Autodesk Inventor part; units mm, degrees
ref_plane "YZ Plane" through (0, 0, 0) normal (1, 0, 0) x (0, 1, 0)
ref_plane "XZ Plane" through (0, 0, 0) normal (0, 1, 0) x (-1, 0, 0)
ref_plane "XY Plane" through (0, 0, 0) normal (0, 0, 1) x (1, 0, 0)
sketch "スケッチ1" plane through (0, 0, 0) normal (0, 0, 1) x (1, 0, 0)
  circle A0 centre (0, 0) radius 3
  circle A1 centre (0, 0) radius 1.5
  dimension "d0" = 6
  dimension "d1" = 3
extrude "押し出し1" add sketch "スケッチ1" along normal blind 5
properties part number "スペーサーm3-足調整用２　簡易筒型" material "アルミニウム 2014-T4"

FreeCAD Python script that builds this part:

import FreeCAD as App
import Part
import Sketcher
from FreeCAD import Vector
Q = App.Units.Quantity

doc = App.newDocument("Part")
body = doc.addObject("PartDesign::Body", "Body")

# Sketch on XY plane
sketch1 = body.newObject("Sketcher::SketchObject", "Sketch")
sketch1.AttachmentSupport = (doc.getObject("XY_Plane"), [""])
sketch1.MapMode = "FlatFace"
sketch1.addGeometry([
    Part.Circle(Vector(0, 0, 0), Vector(0, 0, 1), 3),
    Part.Circle(Vector(0, 0, 0), Vector(0, 0, 1), 1.5),
], False)
sketch1.addConstraint([
    Sketcher.Constraint("Coincident", 0, 3, -1, 1),
    Sketcher.Constraint("Coincident", 1, 3, -1, 1),
    Sketcher.Constraint("Diameter", 0, Q("6 mm")),
    Sketcher.Constraint("Diameter", 1, Q("3 mm")),
])
pad1 = body.newObject("PartDesign::Pad", "Pad")
pad1.Profile = sketch1
pad1.Length = 5

doc.recompute()
